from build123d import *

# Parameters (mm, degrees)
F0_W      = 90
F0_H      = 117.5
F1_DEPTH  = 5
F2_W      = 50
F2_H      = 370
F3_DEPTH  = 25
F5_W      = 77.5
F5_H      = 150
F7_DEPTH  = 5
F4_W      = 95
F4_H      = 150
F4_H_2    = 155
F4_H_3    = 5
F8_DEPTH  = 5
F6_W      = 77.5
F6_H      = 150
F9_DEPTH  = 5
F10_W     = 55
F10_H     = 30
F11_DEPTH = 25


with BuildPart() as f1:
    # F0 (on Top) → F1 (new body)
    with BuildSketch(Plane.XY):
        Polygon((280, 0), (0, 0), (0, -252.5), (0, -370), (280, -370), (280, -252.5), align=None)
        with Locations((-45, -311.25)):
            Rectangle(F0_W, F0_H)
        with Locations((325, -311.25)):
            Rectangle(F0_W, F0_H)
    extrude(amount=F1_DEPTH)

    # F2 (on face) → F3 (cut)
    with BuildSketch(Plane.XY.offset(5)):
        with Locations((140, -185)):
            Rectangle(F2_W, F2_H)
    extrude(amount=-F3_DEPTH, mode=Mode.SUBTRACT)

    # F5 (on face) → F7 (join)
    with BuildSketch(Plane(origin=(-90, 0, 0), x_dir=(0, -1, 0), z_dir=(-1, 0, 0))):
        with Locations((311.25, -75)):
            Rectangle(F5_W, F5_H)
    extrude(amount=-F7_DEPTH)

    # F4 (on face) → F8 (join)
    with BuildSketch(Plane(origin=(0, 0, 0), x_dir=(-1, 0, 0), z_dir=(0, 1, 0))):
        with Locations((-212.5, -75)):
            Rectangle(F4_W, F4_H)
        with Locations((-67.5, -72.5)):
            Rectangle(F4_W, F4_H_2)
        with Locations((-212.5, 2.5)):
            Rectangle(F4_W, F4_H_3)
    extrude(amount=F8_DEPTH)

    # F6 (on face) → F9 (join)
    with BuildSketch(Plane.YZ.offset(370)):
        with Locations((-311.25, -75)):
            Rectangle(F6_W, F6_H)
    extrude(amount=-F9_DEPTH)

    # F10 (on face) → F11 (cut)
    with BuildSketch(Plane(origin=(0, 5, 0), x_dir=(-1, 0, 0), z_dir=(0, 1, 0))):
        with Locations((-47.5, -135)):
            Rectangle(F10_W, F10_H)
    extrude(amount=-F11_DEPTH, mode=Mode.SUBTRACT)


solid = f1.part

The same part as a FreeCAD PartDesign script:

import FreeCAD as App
import Part
import Sketcher
from FreeCAD import Vector

doc = App.newDocument("Part")
body = doc.addObject("PartDesign::Body", "Body")
body.AllowCompound = True

# Sketch on XY plane
sketch1 = body.newObject("Sketcher::SketchObject", "Sketch")
sketch1.AttachmentSupport = (doc.getObject("XY_Plane"), [""])
sketch1.MapMode = "FlatFace"
sketch1.addGeometry([
    Part.LineSegment(Vector(280, 0, 0), Vector(0, 0, 0)),  # 0
    Part.LineSegment(Vector(0, 0, 0), Vector(0, -252.5, 0)),  # 1
    Part.LineSegment(Vector(0, -252.5, 0), Vector(-90, -252.5, 0)),  # 2
    Part.LineSegment(Vector(-90, -252.5, 0), Vector(-90, -370, 0)),  # 3
    Part.LineSegment(Vector(-90, -370, 0), Vector(370, -370, 0)),  # 4
    Part.LineSegment(Vector(370, -370, 0), Vector(370, -252.5, 0)),  # 5
    Part.LineSegment(Vector(370, -252.5, 0), Vector(280, -252.5, 0)),  # 6
    Part.LineSegment(Vector(280, -252.5, 0), Vector(280, 0, 0)),  # 7
], False)
sketch1.addConstraint([
    Sketcher.Constraint("Coincident", 0, 2, 1, 1),
    Sketcher.Constraint("Coincident", 1, 2, 2, 1),
    Sketcher.Constraint("Coincident", 2, 2, 3, 1),
    Sketcher.Constraint("Coincident", 3, 2, 4, 1),
    Sketcher.Constraint("Coincident", 4, 2, 5, 1),
    Sketcher.Constraint("Coincident", 5, 2, 6, 1),
    Sketcher.Constraint("Coincident", 6, 2, 7, 1),
    Sketcher.Constraint("Coincident", 7, 2, 0, 1),
    Sketcher.Constraint("Horizontal", 0),
    Sketcher.Constraint("Vertical", 1),
    Sketcher.Constraint("Horizontal", 2),
    Sketcher.Constraint("Vertical", 3),
    Sketcher.Constraint("Horizontal", 4),
    Sketcher.Constraint("Vertical", 5),
    Sketcher.Constraint("Horizontal", 6),
    Sketcher.Constraint("Vertical", 7),
    Sketcher.Constraint("Coincident", 0, 2, -1, 1),
    Sketcher.Constraint("Horizontal", 2, 2, 5, 2),
    Sketcher.Constraint("Equal", 2, 6),
    Sketcher.Constraint("DistanceX", 0, 2, 0, 1, 280.0),
    Sketcher.Constraint("DistanceX", 2, 2, 2, 1, 90.0),
    Sketcher.Constraint("DistanceY", 1, 2, 1, 1, 252.5),
    Sketcher.Constraint("DistanceY", 3, 2, 3, 1, 117.5),
])
pad1 = body.newObject("PartDesign::Pad", "Pad")
pad1.Profile = sketch1
pad1.Length = 5

# Sketch on XY plane
sketch2 = body.newObject("Sketcher::SketchObject", "Sketch001")
sketch2.AttachmentSupport = (doc.getObject("XY_Plane"), [""])
sketch2.MapMode = "FlatFace"
sketch2.AttachmentOffset = App.Placement(Vector(0, 0, 5), App.Rotation())
sketch2.addGeometry([
    Part.LineSegment(Vector(115, 0, 0), Vector(115, -370, 0)),
    Part.LineSegment(Vector(115, -370, 0), Vector(165, -370, 0)),
    Part.LineSegment(Vector(165, -370, 0), Vector(165, 0, 0)),
    Part.LineSegment(Vector(165, 0, 0), Vector(115, 0, 0)),
], False)
sketch2.addConstraint([
    Sketcher.Constraint("Coincident", 0, 2, 1, 1),
    Sketcher.Constraint("Coincident", 1, 2, 2, 1),
    Sketcher.Constraint("Coincident", 2, 2, 3, 1),
    Sketcher.Constraint("Coincident", 3, 2, 0, 1),
    Sketcher.Constraint("Vertical", 0),
    Sketcher.Constraint("Horizontal", 1),
    Sketcher.Constraint("Vertical", 2),
    Sketcher.Constraint("Horizontal", 3),
    Sketcher.Constraint("PointOnObject", 2, 2, -1),
    Sketcher.Constraint("DistanceX", 1, 1, 1, 2, 50.0),
    Sketcher.Constraint("DistanceY", 0, 2, 0, 1, 370.0),
    Sketcher.Constraint("DistanceX", -1, 1, 0, 2, 115.0),
])
pocket1 = body.newObject("PartDesign::Pocket", "Pocket")
pocket1.Profile = sketch2
pocket1.Length = 25

# Sketch on YZ plane
sketch3 = body.newObject("Sketcher::SketchObject", "Sketch002")
sketch3.AttachmentSupport = (doc.getObject("YZ_Plane"), [""])
sketch3.MapMode = "FlatFace"
sketch3.AttachmentOffset = App.Placement(Vector(0, 0, -90), App.Rotation())
sketch3.addGeometry([
    Part.LineSegment(Vector(-272.5, 0, 0), Vector(-272.5, -150, 0)),
    Part.LineSegment(Vector(-272.5, -150, 0), Vector(-350, -150, 0)),
    Part.LineSegment(Vector(-350, -150, 0), Vector(-350, 0, 0)),
    Part.LineSegment(Vector(-350, 0, 0), Vector(-272.5, 0, 0)),
], False)
sketch3.addConstraint([
    Sketcher.Constraint("Coincident", 0, 2, 1, 1),
    Sketcher.Constraint("Coincident", 1, 2, 2, 1),
    Sketcher.Constraint("Coincident", 2, 2, 3, 1),
    Sketcher.Constraint("Coincident", 3, 2, 0, 1),
    Sketcher.Constraint("Vertical", 0),
    Sketcher.Constraint("Horizontal", 1),
    Sketcher.Constraint("Vertical", 2),
    Sketcher.Constraint("Horizontal", 3),
    Sketcher.Constraint("PointOnObject", 2, 2, -1),
    Sketcher.Constraint("DistanceY", 0, 2, 0, 1, 150.0),
    Sketcher.Constraint("DistanceX", 1, 2, 1, 1, 77.5),
    Sketcher.Constraint("DistanceX", 1, 2, -1, 1, 350.0),
])
pad2 = body.newObject("PartDesign::Pad", "Pad001")
pad2.Profile = sketch3
pad2.Length = 5

# Sketch on XZ plane
sketch4 = body.newObject("Sketcher::SketchObject", "Sketch003")
sketch4.AttachmentSupport = (doc.getObject("XZ_Plane"), [""])
sketch4.MapMode = "FlatFace"
sketch4.addGeometry([
    Part.LineSegment(Vector(260, -150, 0), Vector(165, -150, 0)),  # 0
    Part.LineSegment(Vector(165, -150, 0), Vector(165, 5, 0)),  # 1
    Part.LineSegment(Vector(165, 5, 0), Vector(260, 5, 0)),  # 2
    Part.LineSegment(Vector(260, 5, 0), Vector(260, -150, 0)),  # 3
    Part.LineSegment(Vector(115, 5, 0), Vector(115, -150, 0)),  # 4
    Part.LineSegment(Vector(115, -150, 0), Vector(20, -150, 0)),  # 5
    Part.LineSegment(Vector(20, -150, 0), Vector(20, 5, 0)),  # 6
    Part.LineSegment(Vector(20, 5, 0), Vector(115, 5, 0)),  # 7
], False)
sketch4.addConstraint([
    Sketcher.Constraint("Coincident", 0, 2, 1, 1),
    Sketcher.Constraint("Coincident", 1, 2, 2, 1),
    Sketcher.Constraint("Coincident", 2, 2, 3, 1),
    Sketcher.Constraint("Coincident", 3, 2, 0, 1),
    Sketcher.Constraint("Coincident", 4, 2, 5, 1),
    Sketcher.Constraint("Coincident", 5, 2, 6, 1),
    Sketcher.Constraint("Coincident", 6, 2, 7, 1),
    Sketcher.Constraint("Coincident", 7, 2, 4, 1),
    Sketcher.Constraint("Horizontal", 0),
    Sketcher.Constraint("Vertical", 1),
    Sketcher.Constraint("Horizontal", 2),
    Sketcher.Constraint("Vertical", 3),
    Sketcher.Constraint("Vertical", 4),
    Sketcher.Constraint("Horizontal", 5),
    Sketcher.Constraint("Vertical", 6),
    Sketcher.Constraint("Horizontal", 7),
    Sketcher.Constraint("Horizontal", 3, 2, 4, 2),
    Sketcher.Constraint("Horizontal", 2, 2, 6, 2),
    Sketcher.Constraint("Equal", 2, 5),
    Sketcher.Constraint("DistanceX", 0, 2, 0, 1, 95.0),
    Sketcher.Constraint("DistanceY", 1, 1, 1, 2, 155.0),
    Sketcher.Constraint("DistanceX", -1, 1, 0, 2, 165.0),
    Sketcher.Constraint("DistanceY", 0, 2, -1, 1, 150.0),
    Sketcher.Constraint("DistanceX", -1, 1, 4, 2, 115.0),
])
pad3 = body.newObject("PartDesign::Pad", "Pad002")
pad3.Profile = sketch4
pad3.Length = 5
pad3.Reversed = True

# Sketch on YZ plane
sketch5 = body.newObject("Sketcher::SketchObject", "Sketch004")
sketch5.AttachmentSupport = (doc.getObject("YZ_Plane"), [""])
sketch5.MapMode = "FlatFace"
sketch5.AttachmentOffset = App.Placement(Vector(0, 0, 370), App.Rotation())
sketch5.addGeometry([
    Part.LineSegment(Vector(-350, 0, 0), Vector(-350, -150, 0)),
    Part.LineSegment(Vector(-350, -150, 0), Vector(-272.5, -150, 0)),
    Part.LineSegment(Vector(-272.5, -150, 0), Vector(-272.5, 0, 0)),
    Part.LineSegment(Vector(-272.5, 0, 0), Vector(-350, 0, 0)),
], False)
sketch5.addConstraint([
    Sketcher.Constraint("Coincident", 0, 2, 1, 1),
    Sketcher.Constraint("Coincident", 1, 2, 2, 1),
    Sketcher.Constraint("Coincident", 2, 2, 3, 1),
    Sketcher.Constraint("Coincident", 3, 2, 0, 1),
    Sketcher.Constraint("Vertical", 0),
    Sketcher.Constraint("Horizontal", 1),
    Sketcher.Constraint("Vertical", 2),
    Sketcher.Constraint("Horizontal", 3),
    Sketcher.Constraint("PointOnObject", 2, 2, -1),
    Sketcher.Constraint("DistanceY", 0, 2, 0, 1, 150.0),
    Sketcher.Constraint("DistanceX", 1, 1, 1, 2, 77.5),
    Sketcher.Constraint("DistanceX", 0, 2, -1, 1, 350.0),
])
pad4 = body.newObject("PartDesign::Pad", "Pad003")
pad4.Profile = sketch5
pad4.Length = 5
pad4.Reversed = True

# Sketch on XZ plane
sketch6 = body.newObject("Sketcher::SketchObject", "Sketch005")
sketch6.AttachmentSupport = (doc.getObject("XZ_Plane"), [""])
sketch6.MapMode = "FlatFace"
sketch6.AttachmentOffset = App.Placement(Vector(0, 0, -5), App.Rotation())
sketch6.addGeometry([
    Part.LineSegment(Vector(75, -120, 0), Vector(75, -150, 0)),
    Part.LineSegment(Vector(75, -150, 0), Vector(20, -150, 0)),
    Part.LineSegment(Vector(20, -150, 0), Vector(20, -120, 0)),
    Part.LineSegment(Vector(20, -120, 0), Vector(75, -120, 0)),
], False)
sketch6.addConstraint([
    Sketcher.Constraint("Coincident", 0, 2, 1, 1),
    Sketcher.Constraint("Coincident", 1, 2, 2, 1),
    Sketcher.Constraint("Coincident", 2, 2, 3, 1),
    Sketcher.Constraint("Coincident", 3, 2, 0, 1),
    Sketcher.Constraint("Vertical", 0),
    Sketcher.Constraint("Horizontal", 1),
    Sketcher.Constraint("Vertical", 2),
    Sketcher.Constraint("Horizontal", 3),
    Sketcher.Constraint("DistanceX", 1, 2, 1, 1, 55.0),
    Sketcher.Constraint("DistanceY", 0, 2, 0, 1, 30.0),
    Sketcher.Constraint("DistanceX", -1, 1, 0, 2, 75.0),
    Sketcher.Constraint("DistanceY", 0, 2, -1, 1, 150.0),
])
pocket2 = body.newObject("PartDesign::Pocket", "Pocket001")
pocket2.Profile = sketch6
pocket2.Length = 25
pocket2.Reversed = True

doc.recompute()
